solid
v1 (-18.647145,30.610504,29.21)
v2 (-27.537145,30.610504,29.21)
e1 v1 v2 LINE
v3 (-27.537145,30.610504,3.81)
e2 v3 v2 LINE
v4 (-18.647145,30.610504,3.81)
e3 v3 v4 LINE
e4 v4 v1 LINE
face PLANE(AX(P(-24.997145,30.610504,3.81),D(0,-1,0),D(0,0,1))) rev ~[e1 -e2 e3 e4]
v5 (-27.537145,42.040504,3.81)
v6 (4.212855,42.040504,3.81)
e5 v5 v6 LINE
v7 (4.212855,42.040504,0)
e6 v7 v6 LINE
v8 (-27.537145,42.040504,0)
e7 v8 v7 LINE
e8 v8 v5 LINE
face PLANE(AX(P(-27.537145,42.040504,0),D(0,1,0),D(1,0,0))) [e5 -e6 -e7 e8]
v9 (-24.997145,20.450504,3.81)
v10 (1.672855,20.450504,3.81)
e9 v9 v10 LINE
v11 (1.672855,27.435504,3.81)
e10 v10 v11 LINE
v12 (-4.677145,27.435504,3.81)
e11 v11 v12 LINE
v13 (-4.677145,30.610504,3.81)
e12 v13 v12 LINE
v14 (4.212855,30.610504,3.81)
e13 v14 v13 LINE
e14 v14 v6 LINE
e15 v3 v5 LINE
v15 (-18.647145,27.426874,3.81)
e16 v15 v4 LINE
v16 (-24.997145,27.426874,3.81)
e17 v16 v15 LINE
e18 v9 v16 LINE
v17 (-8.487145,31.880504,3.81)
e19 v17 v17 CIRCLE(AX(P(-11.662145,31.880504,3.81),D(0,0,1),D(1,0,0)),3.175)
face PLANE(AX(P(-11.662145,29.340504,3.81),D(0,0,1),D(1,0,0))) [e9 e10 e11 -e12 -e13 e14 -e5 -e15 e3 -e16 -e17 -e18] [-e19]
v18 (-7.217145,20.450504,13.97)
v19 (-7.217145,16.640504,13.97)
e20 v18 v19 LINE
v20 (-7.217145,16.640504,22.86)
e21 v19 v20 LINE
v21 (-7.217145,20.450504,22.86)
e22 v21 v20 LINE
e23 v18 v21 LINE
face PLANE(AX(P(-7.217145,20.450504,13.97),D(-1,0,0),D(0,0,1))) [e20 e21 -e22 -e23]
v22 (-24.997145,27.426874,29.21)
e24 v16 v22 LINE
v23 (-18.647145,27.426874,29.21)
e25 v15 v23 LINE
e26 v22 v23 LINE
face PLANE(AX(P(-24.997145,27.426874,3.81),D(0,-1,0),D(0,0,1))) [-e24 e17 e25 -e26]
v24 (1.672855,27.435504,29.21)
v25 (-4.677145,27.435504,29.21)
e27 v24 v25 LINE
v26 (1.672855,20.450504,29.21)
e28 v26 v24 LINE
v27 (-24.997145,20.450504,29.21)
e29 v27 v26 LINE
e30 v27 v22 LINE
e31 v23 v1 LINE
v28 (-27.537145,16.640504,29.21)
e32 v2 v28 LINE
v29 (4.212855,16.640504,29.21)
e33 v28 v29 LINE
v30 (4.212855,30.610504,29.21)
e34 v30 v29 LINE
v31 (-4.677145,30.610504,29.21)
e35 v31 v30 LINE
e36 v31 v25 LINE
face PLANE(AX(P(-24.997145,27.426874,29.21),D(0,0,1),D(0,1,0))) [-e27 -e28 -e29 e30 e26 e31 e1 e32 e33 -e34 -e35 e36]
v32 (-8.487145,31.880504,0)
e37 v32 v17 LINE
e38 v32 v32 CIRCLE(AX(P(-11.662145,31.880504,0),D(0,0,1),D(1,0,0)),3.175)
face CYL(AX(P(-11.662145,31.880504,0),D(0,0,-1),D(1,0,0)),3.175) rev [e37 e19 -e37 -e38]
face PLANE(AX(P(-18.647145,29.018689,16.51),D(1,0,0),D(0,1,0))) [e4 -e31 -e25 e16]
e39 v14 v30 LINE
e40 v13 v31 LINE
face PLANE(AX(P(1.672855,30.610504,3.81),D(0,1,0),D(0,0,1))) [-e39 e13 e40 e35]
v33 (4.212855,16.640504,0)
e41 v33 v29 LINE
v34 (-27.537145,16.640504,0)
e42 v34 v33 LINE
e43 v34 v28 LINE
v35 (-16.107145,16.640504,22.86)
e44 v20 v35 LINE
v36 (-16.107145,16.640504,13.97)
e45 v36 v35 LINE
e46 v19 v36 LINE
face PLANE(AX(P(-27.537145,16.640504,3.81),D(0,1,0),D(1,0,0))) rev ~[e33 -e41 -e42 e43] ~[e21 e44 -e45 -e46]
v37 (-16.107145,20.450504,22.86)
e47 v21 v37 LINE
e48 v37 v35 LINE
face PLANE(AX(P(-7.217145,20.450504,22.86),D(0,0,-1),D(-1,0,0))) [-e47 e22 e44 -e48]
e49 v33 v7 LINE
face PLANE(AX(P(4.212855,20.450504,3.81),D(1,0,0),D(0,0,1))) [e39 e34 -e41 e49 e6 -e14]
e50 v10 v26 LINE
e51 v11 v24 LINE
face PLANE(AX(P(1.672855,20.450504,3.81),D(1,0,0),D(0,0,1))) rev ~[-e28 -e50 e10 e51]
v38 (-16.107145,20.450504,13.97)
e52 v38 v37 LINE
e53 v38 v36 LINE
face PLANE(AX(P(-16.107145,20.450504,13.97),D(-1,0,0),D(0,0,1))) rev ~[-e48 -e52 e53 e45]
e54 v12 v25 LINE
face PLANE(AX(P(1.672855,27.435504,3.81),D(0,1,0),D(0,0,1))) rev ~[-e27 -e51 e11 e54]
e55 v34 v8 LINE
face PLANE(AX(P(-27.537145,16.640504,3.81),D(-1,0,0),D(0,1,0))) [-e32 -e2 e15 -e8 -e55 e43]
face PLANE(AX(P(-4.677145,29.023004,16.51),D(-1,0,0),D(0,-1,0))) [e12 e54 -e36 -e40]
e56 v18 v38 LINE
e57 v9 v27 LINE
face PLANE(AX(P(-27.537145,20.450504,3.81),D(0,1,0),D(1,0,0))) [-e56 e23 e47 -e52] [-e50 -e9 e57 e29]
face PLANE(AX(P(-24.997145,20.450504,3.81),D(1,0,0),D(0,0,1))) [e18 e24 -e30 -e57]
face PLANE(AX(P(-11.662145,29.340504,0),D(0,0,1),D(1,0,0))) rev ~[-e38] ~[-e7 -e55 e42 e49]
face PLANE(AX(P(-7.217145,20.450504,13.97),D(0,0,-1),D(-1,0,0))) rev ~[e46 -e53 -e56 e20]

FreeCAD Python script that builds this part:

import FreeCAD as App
import Part
import Sketcher
Q = App.Units.Quantity


def add_polygon(sketch, points):
    """Adds a closed chain of lines whose ends are joined by coincident constraints."""
    first, n = sketch.GeometryCount, len(points)
    for a, b in zip(points, points[1:] + points[:1]):
        sketch.addGeometry(Part.LineSegment(App.Vector(*a, 0), App.Vector(*b, 0)), False)
    for i in range(n):
        sketch.addConstraint(Sketcher.Constraint("Coincident", first + i, 2, first + (i + 1) % n, 1))

doc = App.newDocument("Part")
body = doc.addObject("PartDesign::Body", "Body")

# Sketch on XY plane
sketch1 = body.newObject("Sketcher::SketchObject", "Sketch")
sketch1.AttachmentSupport = (doc.getObject("XY_Plane"), [""])
sketch1.MapMode = "FlatFace"
add_polygon(sketch1, [(-27.5, 42), (-27.5, 16.6), (4.2, 16.6), (4.2, 42)])  # lines 0-3
sketch1.addGeometry(Part.Circle(App.Vector(-11.7, 31.9, 0), App.Vector(0, 0, 1), 3.2), False)  # 4
sketch1.addConstraint([
    Sketcher.Constraint("Vertical", 0),
    Sketcher.Constraint("Horizontal", 1),
    Sketcher.Constraint("Vertical", 2),
    Sketcher.Constraint("Horizontal", 3),
    Sketcher.Constraint("Diameter", 4, Q("0.25 in")),
    Sketcher.Constraint("DistanceY", 0, 2, 0, 1, Q("1 in")),
    Sketcher.Constraint("DistanceX", 1, 1, 1, 2, Q("1.25 in")),
    Sketcher.Constraint("DistanceY", 0, 2, 4, 3, Q("0.6 in")),
    Sketcher.Constraint("DistanceX", 0, 2, 4, 3, Q("0.625 in")),
    Sketcher.Constraint("DistanceX", 4, 3, -1, 1, 11.662145),
    Sketcher.Constraint("DistanceY", -1, 1, 4, 3, 31.880504),
])
pad1 = body.newObject("PartDesign::Pad", "Pad")
pad1.Profile = sketch1
pad1.Length = Q("0.15 in")

# Sketch on XY plane
sketch2 = body.newObject("Sketcher::SketchObject", "Sketch001")
sketch2.AttachmentSupport = (doc.getObject("XY_Plane"), [""])
sketch2.MapMode = "FlatFace"
sketch2.AttachmentOffset = App.Placement(App.Vector(0, 0, 0.15 * 25.4), App.Rotation())
add_polygon(sketch2, [(-27.5, 20.5), (-27.5, 16.6), (4.2, 16.6), (4.2, 20.5)])  # lines 0-3
sketch2.addConstraint([
    Sketcher.Constraint("Vertical", 0),
    Sketcher.Constraint("Horizontal", 1),
    Sketcher.Constraint("Vertical", 2),
    Sketcher.Constraint("Horizontal", 3),
    Sketcher.Constraint("DistanceX", 1, 1, 1, 2, Q("1.25 in")),
    Sketcher.Constraint("DistanceY", 0, 2, 0, 1, Q("0.15 in")),
    Sketcher.Constraint("DistanceX", 0, 2, -1, 1, 27.537145),
    Sketcher.Constraint("DistanceY", -1, 1, 0, 2, 16.640504),
])
pad2 = body.newObject("PartDesign::Pad", "Pad001")
pad2.Profile = sketch2
pad2.Length = Q("1 in")

# Sketch on XZ plane
sketch3 = body.newObject("Sketcher::SketchObject", "Sketch002")
sketch3.AttachmentSupport = (doc.getObject("XZ_Plane"), [""])
sketch3.MapMode = "FlatFace"
sketch3.AttachmentOffset = App.Placement(App.Vector(0, 0, -20.450504), App.Rotation())
add_polygon(sketch3, [(4.2, 29.2), (4.2, 3.8), (1.7, 3.8), (1.7, 29.2)])  # lines 0-3
add_polygon(sketch3, [(-25, 29.2), (-25, 3.8), (-27.5, 3.8), (-27.5, 29.2)])  # lines 4-7
sketch3.addConstraint([
    Sketcher.Constraint("Vertical", 0),
    Sketcher.Constraint("Horizontal", 1),
    Sketcher.Constraint("Vertical", 2),
    Sketcher.Constraint("Horizontal", 3),
    Sketcher.Constraint("Vertical", 4),
    Sketcher.Constraint("Horizontal", 5),
    Sketcher.Constraint("Vertical", 6),
    Sketcher.Constraint("Horizontal", 7),
    Sketcher.Constraint("Horizontal", 1, 2, 4, 2),
    Sketcher.Constraint("Horizontal", 3, 2, 6, 2),
    Sketcher.Constraint("Equal", 3, 5),
    Sketcher.Constraint("DistanceY", 0, 2, 0, 1, Q("1 in")),
    Sketcher.Constraint("DistanceX", 1, 2, 1, 1, Q("0.1 in")),
    Sketcher.Constraint("DistanceY", -1, 1, 0, 2, Q("0.15 in")),
    Sketcher.Constraint("DistanceX", 4, 2, 1, 2, Q("1.05 in")),
    Sketcher.Constraint("DistanceX", -1, 1, 0, 2, 4.212855),
])
pad3 = body.newObject("PartDesign::Pad", "Pad002")
pad3.Profile = sketch3
pad3.Length = Q("0.4 in")
pad3.Reversed = True

# Sketch on XZ plane
sketch4 = body.newObject("Sketcher::SketchObject", "Sketch003")
sketch4.AttachmentSupport = (doc.getObject("XZ_Plane"), [""])
sketch4.MapMode = "FlatFace"
sketch4.AttachmentOffset = App.Placement(App.Vector(0, 0, -20.450504), App.Rotation())
add_polygon(sketch4, [(-7, 23), (-7, 14), (-16, 14), (-16, 23)])  # lines 0-3
sketch4.addConstraint([
    Sketcher.Constraint("Vertical", 0),
    Sketcher.Constraint("Horizontal", 1),
    Sketcher.Constraint("Vertical", 2),
    Sketcher.Constraint("Horizontal", 3),
    Sketcher.Constraint("Equal", 3, 0),
    Sketcher.Constraint("DistanceX", 1, 2, 1, 1, Q("0.35 in")),
    Sketcher.Constraint("DistanceY", -1, 1, 2, 2, Q("0.9 in")),
    Sketcher.Constraint("DistanceX", 0, 2, -1, 1, 7.217145),
])
pocket1 = body.newObject("PartDesign::Pocket", "Pocket")
pocket1.Profile = sketch4
pocket1.Length = Q("1 in")
pocket1.Reversed = True

# Sketch on YZ plane
sketch5 = body.newObject("Sketcher::SketchObject", "Sketch004")
sketch5.AttachmentSupport = (doc.getObject("YZ_Plane"), [""])
sketch5.MapMode = "FlatFace"
sketch5.AttachmentOffset = App.Placement(App.Vector(0, 0, 1.672855), App.Rotation())
add_polygon(sketch5, [(30.6, 29.2), (30.6, 3.8), (27.4, 3.8), (27.4, 29.2)])  # lines 0-3
sketch5.addConstraint([
    Sketcher.Constraint("Vertical", 0),
    Sketcher.Constraint("Horizontal", 1),
    Sketcher.Constraint("Vertical", 2),
    Sketcher.Constraint("Horizontal", 3),
    Sketcher.Constraint("DistanceY", 0, 2, 0, 1, Q("1 in")),
    Sketcher.Constraint("DistanceX", 1, 2, 1, 1, Q("0.125 in")),
    Sketcher.Constraint("DistanceY", -1, 1, 0, 2, Q("0.15 in")),
    Sketcher.Constraint("DistanceX", -1, 1, 0, 2, 30.610504),
])
pad4 = body.newObject("PartDesign::Pad", "Pad003")
pad4.Profile = sketch5
pad4.Length = Q("0.25 in")
pad4.Reversed = True

# Sketch on YZ plane
sketch6 = body.newObject("Sketcher::SketchObject", "Sketch005")
sketch6.AttachmentSupport = (doc.getObject("YZ_Plane"), [""])
sketch6.MapMode = "FlatFace"
sketch6.AttachmentOffset = App.Placement(App.Vector(0, 0, -24.997145), App.Rotation())
add_polygon(sketch6, [(27.4, 29.2), (27.4, 3.8), (30.6, 3.8), (30.6, 29.2)])  # lines 0-3
sketch6.addConstraint([
    Sketcher.Constraint("Vertical", 0),
    Sketcher.Constraint("Horizontal", 1),
    Sketcher.Constraint("Vertical", 2),
    Sketcher.Constraint("Horizontal", 3),
    Sketcher.Constraint("DistanceY", 0, 2, 0, 1, Q("1 in")),
    Sketcher.Constraint("DistanceY", -1, 1, 0, 2, Q("0.15 in")),
    Sketcher.Constraint("DistanceX", 1, 1, 1, 2, 3.18363),
    Sketcher.Constraint("DistanceX", -1, 1, 0, 2, 27.426874),
])
pad5 = body.newObject("PartDesign::Pad", "Pad004")
pad5.Profile = sketch6
pad5.Length = Q("0.25 in")

doc.recompute()
